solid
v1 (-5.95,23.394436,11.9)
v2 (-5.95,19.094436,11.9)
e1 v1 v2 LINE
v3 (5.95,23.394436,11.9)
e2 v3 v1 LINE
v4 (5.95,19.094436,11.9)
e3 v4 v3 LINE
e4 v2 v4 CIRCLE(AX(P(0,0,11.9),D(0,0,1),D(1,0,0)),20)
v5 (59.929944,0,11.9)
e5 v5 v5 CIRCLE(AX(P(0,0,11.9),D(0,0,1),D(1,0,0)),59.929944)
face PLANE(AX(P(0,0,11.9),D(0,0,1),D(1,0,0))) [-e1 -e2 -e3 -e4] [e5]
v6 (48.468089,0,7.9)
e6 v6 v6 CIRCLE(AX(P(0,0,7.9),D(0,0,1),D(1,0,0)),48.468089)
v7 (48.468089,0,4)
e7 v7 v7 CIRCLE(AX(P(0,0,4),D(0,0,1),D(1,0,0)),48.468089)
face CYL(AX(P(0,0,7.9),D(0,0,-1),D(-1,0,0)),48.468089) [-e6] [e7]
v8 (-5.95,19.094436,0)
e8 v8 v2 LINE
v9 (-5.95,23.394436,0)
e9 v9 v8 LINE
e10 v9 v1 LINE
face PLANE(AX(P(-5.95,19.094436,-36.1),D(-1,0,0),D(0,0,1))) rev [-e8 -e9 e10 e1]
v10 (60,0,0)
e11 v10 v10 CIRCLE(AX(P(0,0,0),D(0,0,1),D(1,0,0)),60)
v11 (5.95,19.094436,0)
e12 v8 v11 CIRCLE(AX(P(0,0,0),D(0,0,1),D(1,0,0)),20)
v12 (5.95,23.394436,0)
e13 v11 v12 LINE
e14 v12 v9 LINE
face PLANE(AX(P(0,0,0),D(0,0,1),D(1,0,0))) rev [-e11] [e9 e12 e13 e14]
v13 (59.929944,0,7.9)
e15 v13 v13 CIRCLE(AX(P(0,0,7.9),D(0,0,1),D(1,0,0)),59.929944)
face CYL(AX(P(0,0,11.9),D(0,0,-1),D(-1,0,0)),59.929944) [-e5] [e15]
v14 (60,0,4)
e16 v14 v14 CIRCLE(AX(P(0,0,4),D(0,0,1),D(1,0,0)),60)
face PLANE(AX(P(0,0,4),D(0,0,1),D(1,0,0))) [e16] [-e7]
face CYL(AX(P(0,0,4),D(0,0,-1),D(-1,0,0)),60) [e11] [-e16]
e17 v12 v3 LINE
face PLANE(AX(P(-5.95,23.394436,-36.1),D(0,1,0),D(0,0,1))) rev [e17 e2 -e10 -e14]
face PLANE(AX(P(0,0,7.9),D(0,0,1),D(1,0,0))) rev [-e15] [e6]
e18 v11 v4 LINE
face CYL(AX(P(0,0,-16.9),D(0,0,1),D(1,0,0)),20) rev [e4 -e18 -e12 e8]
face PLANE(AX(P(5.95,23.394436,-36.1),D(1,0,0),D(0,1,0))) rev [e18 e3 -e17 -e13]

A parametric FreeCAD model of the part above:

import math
import FreeCAD as App
import Part
import Sketcher
Q = App.Units.Quantity

doc = App.newDocument("Part")
params = doc.addObject("Spreadsheet::Sheet", "Params")
for row, (alias, value) in enumerate([
    ("sketch1_diameter", "120 mm"),
    ("pad1_length", "4 mm"),
    ("sketch2_diameter", "40 mm"),
    ("pocket1_length", "20.9 mm"),
    ("pad2_length", "3.9 mm"),
    ("pad3_length", "4 mm"),
    ("sketch5_diameter", "40 mm"),
    ("pocket2_length", "48 mm"),
    ("sketch6_radius", "20 mm"),
    ("sketch6_width", "11.9 mm"),
    ("sketch6_height", "4.3 mm"),
    ("pocket3_length", "48 mm"),
], start=1):
    params.set(f"A{row}", alias)
    params.set(f"B{row}", "=" + value)
    params.setAlias(f"B{row}", alias)

body = doc.addObject("PartDesign::Body", "Body")

# Sketch on XY plane
sketch1 = body.newObject("Sketcher::SketchObject", "Sketch")
sketch1.AttachmentSupport = (doc.getObject("XY_Plane"), [""])
sketch1.MapMode = "FlatFace"
sketch1.addGeometry(Part.Circle(App.Vector(0, 0, 0), App.Vector(0, 0, 1), 60), False)
sketch1.addConstraint(Sketcher.Constraint("Coincident", 0, 3, -1, 1))
sketch1.addConstraint(Sketcher.Constraint("Diameter", 0, Q("120 mm")))
sketch1.setExpression("Constraints[1]", "Params.sketch1_diameter")
pad1 = body.newObject("PartDesign::Pad", "Pad")
pad1.Profile = sketch1
pad1.setExpression("Length", "Params.pad1_length")

# Sketch on XY plane
sketch2 = body.newObject("Sketcher::SketchObject", "Sketch001")
sketch2.AttachmentSupport = (doc.getObject("XY_Plane"), [""])
sketch2.MapMode = "FlatFace"
sketch2.AttachmentOffset = App.Placement(App.Vector(0, 0, 4), App.Rotation())
sketch2.addGeometry(Part.Circle(App.Vector(0, 0, 0), App.Vector(0, 0, 1), 20), False)
sketch2.addConstraint(Sketcher.Constraint("Coincident", 0, 3, -1, 1))
sketch2.addConstraint(Sketcher.Constraint("Diameter", 0, Q("40 mm")))
sketch2.setExpression("Constraints[1]", "Params.sketch2_diameter")
pocket1 = body.newObject("PartDesign::Pocket", "Pocket")
pocket1.Profile = sketch2
pocket1.setExpression("Length", "Params.pocket1_length")

# Sketch on XY plane
sketch3 = body.newObject("Sketcher::SketchObject", "Sketch002")
sketch3.AttachmentSupport = (doc.getObject("XY_Plane"), [""])
sketch3.MapMode = "FlatFace"
sketch3.AttachmentOffset = App.Placement(App.Vector(0, 0, 4), App.Rotation())
sketch3.addGeometry(Part.Circle(App.Vector(0, 0, 0), App.Vector(0, 0, 1), 48), False)
sketch3.addConstraint(Sketcher.Constraint("Coincident", 0, 3, -1, 1))
sketch3.addConstraint(Sketcher.Constraint("Diameter", 0, Q("96.936179 mm")))
pad2 = body.newObject("PartDesign::Pad", "Pad001")
pad2.Profile = sketch3
pad2.setExpression("Length", "Params.pad2_length")

# Sketch on XY plane
sketch4 = body.newObject("Sketcher::SketchObject", "Sketch003")
sketch4.AttachmentSupport = (doc.getObject("XY_Plane"), [""])
sketch4.MapMode = "FlatFace"
sketch4.AttachmentOffset = App.Placement(App.Vector(0, 0, 7.9), App.Rotation())
sketch4.addGeometry(Part.Circle(App.Vector(0, 0, 0), App.Vector(0, 0, 1), 60), False)
sketch4.addConstraint(Sketcher.Constraint("Coincident", 0, 3, -1, 1))
sketch4.addConstraint(Sketcher.Constraint("Diameter", 0, Q("119.859887 mm")))
pad3 = body.newObject("PartDesign::Pad", "Pad002")
pad3.Profile = sketch4
pad3.setExpression("Length", "Params.pad3_length")

# Sketch on XY plane
sketch5 = body.newObject("Sketcher::SketchObject", "Sketch004")
sketch5.AttachmentSupport = (doc.getObject("XY_Plane"), [""])
sketch5.MapMode = "FlatFace"
sketch5.AttachmentOffset = App.Placement(App.Vector(0, 0, 11.9), App.Rotation())
sketch5.addGeometry(Part.Circle(App.Vector(0, 0, 0), App.Vector(0, 0, 1), 20), False)
sketch5.addConstraint(Sketcher.Constraint("Coincident", 0, 3, -1, 1))
sketch5.addConstraint(Sketcher.Constraint("Diameter", 0, Q("40 mm")))
sketch5.setExpression("Constraints[1]", "Params.sketch5_diameter")
pocket2 = body.newObject("PartDesign::Pocket", "Pocket001")
pocket2.Profile = sketch5
pocket2.setExpression("Length", "Params.pocket2_length")

# Sketch on XY plane
sketch6 = body.newObject("Sketcher::SketchObject", "Sketch005")
sketch6.AttachmentSupport = (doc.getObject("XY_Plane"), [""])
sketch6.MapMode = "FlatFace"
sketch6.AttachmentOffset = App.Placement(App.Vector(0, 0, 11.9), App.Rotation())
sketch6.addGeometry(Part.LineSegment(App.Vector(-6, 23.4, 0), App.Vector(-6, 19.1, 0)), False)
sketch6.addGeometry(Part.ArcOfCircle(Part.Circle(App.Vector(0, 0, 0), App.Vector(0, 0, 1), 20), math.radians(73), math.radians(107)), False)
sketch6.addGeometry(Part.LineSegment(App.Vector(6, 19.1, 0), App.Vector(6, 23.4, 0)), False)
sketch6.addGeometry(Part.LineSegment(App.Vector(6, 23.4, 0), App.Vector(-6, 23.4, 0)), False)
sketch6.addConstraint(Sketcher.Constraint("Coincident", 0, 2, 1, 2))
sketch6.addConstraint(Sketcher.Constraint("Coincident", 1, 1, 2, 1))
sketch6.addConstraint(Sketcher.Constraint("Coincident", 2, 2, 3, 1))
sketch6.addConstraint(Sketcher.Constraint("Coincident", 3, 2, 0, 1))
sketch6.addConstraint(Sketcher.Constraint("Vertical", 0))
sketch6.addConstraint(Sketcher.Constraint("Vertical", 2))
sketch6.addConstraint(Sketcher.Constraint("Horizontal", 3))
sketch6.addConstraint(Sketcher.Constraint("Coincident", 1, 3, -1, 1))
sketch6.addConstraint(Sketcher.Constraint("Horizontal", 0, 2, 1, 1))
sketch6.addConstraint(Sketcher.Constraint("Radius", 1, Q("20 mm")))
sketch6.addConstraint(Sketcher.Constraint("DistanceX", 3, 2, 3, 1, Q("11.9 mm")))
sketch6.addConstraint(Sketcher.Constraint("DistanceY", 0, 2, 0, 1, Q("4.3 mm")))
sketch6.setExpression("Constraints[9]", "Params.sketch6_radius")
sketch6.setExpression("Constraints[10]", "Params.sketch6_width")
sketch6.setExpression("Constraints[11]", "Params.sketch6_height")
pocket3 = body.newObject("PartDesign::Pocket", "Pocket002")
pocket3.Profile = sketch6
pocket3.setExpression("Length", "Params.pocket3_length")

doc.recompute()
